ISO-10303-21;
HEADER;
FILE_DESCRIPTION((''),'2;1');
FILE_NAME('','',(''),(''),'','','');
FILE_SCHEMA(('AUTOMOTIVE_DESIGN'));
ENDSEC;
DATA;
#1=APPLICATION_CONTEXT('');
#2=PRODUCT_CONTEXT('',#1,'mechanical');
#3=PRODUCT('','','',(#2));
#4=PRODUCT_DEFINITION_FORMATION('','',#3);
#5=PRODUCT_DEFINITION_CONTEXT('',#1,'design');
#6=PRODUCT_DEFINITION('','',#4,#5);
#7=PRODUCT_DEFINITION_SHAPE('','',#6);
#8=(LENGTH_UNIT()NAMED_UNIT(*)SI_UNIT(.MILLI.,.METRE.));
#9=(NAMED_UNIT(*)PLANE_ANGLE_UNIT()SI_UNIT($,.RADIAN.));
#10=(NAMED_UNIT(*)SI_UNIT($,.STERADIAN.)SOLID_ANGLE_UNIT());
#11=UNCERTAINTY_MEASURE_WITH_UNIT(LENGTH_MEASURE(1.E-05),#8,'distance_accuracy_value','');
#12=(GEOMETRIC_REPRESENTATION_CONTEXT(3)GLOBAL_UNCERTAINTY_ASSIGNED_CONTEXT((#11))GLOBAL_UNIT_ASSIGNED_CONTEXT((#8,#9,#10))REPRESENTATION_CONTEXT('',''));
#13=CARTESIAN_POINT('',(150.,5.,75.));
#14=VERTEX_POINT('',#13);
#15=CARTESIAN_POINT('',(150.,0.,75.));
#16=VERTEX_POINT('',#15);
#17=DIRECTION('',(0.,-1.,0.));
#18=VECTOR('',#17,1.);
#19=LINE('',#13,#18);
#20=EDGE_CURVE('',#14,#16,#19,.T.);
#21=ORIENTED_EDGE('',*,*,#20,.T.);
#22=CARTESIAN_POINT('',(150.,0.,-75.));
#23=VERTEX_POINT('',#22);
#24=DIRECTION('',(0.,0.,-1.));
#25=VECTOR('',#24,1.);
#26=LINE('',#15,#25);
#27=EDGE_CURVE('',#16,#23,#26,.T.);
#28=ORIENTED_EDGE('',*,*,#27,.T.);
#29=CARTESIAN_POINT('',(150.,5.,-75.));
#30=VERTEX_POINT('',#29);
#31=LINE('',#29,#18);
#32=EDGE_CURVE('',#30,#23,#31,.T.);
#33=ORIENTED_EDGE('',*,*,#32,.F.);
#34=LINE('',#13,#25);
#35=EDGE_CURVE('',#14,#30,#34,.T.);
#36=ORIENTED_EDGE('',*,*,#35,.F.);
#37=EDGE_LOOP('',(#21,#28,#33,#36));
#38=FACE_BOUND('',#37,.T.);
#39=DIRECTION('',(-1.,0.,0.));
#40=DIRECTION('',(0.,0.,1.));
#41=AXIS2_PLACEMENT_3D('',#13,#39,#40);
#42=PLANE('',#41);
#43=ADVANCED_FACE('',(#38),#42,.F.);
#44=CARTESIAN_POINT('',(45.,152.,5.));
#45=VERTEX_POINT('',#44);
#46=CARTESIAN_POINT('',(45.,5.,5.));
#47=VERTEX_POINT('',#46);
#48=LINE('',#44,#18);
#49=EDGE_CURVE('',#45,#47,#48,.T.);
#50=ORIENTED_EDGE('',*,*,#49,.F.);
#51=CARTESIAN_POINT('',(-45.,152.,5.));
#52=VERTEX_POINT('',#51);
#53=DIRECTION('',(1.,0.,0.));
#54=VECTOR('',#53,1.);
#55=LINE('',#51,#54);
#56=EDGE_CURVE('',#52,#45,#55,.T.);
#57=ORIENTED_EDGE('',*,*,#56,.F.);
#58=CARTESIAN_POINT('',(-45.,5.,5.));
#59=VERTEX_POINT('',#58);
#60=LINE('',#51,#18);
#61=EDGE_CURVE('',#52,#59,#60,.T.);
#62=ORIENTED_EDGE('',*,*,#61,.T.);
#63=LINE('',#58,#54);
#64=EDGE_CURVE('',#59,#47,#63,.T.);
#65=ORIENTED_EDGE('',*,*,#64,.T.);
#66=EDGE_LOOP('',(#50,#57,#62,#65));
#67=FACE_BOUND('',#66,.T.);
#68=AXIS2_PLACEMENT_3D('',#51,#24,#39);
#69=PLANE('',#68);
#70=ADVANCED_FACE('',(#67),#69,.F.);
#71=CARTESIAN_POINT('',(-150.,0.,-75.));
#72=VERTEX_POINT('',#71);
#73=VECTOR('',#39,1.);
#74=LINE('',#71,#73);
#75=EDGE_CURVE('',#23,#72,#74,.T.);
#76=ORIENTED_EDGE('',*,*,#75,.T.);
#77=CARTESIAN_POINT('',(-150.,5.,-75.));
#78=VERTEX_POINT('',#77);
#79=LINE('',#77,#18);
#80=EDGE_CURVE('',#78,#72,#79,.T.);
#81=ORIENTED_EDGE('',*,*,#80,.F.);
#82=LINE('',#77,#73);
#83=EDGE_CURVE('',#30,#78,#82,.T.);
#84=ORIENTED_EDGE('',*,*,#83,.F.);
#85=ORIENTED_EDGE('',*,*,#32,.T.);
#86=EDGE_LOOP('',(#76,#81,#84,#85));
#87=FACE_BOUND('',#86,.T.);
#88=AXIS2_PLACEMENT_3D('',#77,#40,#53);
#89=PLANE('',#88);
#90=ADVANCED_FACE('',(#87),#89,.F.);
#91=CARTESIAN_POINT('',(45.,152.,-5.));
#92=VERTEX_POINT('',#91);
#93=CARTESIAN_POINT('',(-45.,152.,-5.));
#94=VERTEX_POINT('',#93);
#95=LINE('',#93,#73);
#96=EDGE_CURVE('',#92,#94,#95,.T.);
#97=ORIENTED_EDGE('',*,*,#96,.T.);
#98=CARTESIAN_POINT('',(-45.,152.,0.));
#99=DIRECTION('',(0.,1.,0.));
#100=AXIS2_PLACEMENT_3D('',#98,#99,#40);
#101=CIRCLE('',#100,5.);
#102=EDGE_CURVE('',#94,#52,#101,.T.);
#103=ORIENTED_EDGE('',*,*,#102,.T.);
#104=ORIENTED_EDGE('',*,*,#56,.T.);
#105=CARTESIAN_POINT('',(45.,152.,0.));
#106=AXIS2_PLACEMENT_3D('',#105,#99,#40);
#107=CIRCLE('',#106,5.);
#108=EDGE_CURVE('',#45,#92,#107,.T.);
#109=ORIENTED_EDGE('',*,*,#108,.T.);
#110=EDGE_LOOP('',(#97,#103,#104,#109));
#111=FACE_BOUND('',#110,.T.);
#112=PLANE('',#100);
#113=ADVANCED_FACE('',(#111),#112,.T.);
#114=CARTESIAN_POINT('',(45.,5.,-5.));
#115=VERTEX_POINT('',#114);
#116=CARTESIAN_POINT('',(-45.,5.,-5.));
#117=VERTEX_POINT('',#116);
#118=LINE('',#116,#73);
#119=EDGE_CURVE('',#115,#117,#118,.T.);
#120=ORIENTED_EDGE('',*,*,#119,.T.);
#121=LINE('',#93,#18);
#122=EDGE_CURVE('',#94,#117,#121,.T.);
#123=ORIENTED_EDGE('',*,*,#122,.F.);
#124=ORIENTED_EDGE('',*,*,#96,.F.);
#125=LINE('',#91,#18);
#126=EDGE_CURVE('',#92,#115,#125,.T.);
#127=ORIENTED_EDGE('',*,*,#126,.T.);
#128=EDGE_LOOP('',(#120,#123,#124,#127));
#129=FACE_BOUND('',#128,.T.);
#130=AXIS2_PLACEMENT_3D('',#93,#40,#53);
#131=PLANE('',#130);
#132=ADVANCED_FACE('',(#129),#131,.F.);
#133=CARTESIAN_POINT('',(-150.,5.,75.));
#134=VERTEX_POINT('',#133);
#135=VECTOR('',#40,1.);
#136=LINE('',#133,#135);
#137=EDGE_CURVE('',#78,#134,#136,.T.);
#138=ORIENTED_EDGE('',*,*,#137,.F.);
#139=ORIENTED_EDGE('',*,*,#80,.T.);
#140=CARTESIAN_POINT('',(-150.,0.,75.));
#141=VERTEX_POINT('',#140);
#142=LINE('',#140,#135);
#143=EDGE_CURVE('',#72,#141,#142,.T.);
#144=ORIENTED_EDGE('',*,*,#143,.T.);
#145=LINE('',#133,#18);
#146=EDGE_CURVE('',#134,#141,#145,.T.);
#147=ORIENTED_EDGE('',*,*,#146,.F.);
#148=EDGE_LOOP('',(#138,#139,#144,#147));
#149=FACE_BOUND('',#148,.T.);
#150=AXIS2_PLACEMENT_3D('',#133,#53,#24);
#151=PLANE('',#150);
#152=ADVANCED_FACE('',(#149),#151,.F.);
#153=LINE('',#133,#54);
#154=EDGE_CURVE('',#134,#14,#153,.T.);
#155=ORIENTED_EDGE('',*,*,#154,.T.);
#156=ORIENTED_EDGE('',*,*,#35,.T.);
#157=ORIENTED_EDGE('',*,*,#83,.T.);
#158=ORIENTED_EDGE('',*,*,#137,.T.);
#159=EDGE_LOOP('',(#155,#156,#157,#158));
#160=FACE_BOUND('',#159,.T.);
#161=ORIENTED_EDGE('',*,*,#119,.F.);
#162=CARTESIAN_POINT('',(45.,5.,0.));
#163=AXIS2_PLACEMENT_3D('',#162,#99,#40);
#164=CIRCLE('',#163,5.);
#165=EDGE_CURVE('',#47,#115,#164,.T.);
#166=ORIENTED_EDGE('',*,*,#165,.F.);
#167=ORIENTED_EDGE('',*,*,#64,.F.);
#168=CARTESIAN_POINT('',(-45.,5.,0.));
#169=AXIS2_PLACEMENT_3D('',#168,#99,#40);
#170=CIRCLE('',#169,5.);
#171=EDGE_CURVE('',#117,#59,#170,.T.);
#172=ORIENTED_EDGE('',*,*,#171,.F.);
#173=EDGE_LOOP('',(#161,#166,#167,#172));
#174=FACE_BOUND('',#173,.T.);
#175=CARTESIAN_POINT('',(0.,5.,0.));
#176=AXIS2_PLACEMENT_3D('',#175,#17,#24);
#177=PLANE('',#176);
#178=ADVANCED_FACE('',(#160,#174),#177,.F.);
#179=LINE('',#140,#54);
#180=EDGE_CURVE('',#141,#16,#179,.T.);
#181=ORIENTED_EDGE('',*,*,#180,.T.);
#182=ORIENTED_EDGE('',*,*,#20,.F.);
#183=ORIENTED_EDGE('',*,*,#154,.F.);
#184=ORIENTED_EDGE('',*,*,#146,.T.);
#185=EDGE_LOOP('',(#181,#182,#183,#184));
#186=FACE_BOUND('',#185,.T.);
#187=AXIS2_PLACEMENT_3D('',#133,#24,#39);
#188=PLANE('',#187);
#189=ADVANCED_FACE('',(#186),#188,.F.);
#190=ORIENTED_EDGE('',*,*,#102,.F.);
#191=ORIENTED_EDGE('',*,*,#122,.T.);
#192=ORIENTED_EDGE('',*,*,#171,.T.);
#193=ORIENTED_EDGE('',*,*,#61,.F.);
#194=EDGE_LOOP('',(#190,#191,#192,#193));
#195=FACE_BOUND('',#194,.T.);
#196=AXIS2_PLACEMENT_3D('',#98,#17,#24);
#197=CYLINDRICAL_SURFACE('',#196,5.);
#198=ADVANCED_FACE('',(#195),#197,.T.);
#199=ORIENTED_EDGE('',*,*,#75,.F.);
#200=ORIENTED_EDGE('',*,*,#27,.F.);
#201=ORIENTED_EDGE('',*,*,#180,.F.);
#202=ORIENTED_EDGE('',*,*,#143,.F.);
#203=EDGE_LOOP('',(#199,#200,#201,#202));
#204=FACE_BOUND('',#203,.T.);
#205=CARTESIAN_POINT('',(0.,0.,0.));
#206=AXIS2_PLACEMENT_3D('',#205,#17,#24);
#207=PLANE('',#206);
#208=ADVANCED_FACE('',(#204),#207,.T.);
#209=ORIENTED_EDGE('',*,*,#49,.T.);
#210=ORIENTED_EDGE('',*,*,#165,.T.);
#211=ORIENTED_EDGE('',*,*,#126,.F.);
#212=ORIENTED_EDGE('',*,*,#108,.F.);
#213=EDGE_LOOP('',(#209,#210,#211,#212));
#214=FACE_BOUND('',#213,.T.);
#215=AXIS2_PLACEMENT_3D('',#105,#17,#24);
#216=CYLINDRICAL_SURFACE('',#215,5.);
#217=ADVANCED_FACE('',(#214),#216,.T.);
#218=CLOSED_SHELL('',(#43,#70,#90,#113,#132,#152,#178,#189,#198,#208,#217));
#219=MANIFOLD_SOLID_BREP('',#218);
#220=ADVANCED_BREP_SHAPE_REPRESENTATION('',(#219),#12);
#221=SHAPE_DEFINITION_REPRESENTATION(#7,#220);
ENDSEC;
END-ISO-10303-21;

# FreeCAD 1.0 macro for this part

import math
import FreeCAD as App
import Part
import Sketcher

doc = App.newDocument("Part")
body = doc.addObject("PartDesign::Body", "Body")

# Sketch on XZ plane
sketch1 = body.newObject("Sketcher::SketchObject", "Sketch")
sketch1.AttachmentSupport = (doc.getObject("XZ_Plane"), [""])
sketch1.MapMode = "FlatFace"
sketch1.addGeometry(Part.LineSegment(App.Vector(-150, -75, 0), App.Vector(-150, 75, 0)), False)
sketch1.addGeometry(Part.LineSegment(App.Vector(-150, 75, 0), App.Vector(150, 75, 0)), False)
sketch1.addGeometry(Part.LineSegment(App.Vector(150, 75, 0), App.Vector(150, -75, 0)), False)
sketch1.addGeometry(Part.LineSegment(App.Vector(150, -75, 0), App.Vector(-150, -75, 0)), False)
sketch1.addConstraint(Sketcher.Constraint("Coincident", 0, 2, 1, 1))
sketch1.addConstraint(Sketcher.Constraint("Coincident", 1, 2, 2, 1))
sketch1.addConstraint(Sketcher.Constraint("Coincident", 2, 2, 3, 1))
sketch1.addConstraint(Sketcher.Constraint("Coincident", 3, 2, 0, 1))
sketch1.addConstraint(Sketcher.Constraint("Vertical", 0))
sketch1.addConstraint(Sketcher.Constraint("Horizontal", 1))
sketch1.addConstraint(Sketcher.Constraint("Vertical", 2))
sketch1.addConstraint(Sketcher.Constraint("Horizontal", 3))
sketch1.addConstraint(Sketcher.Constraint("Symmetric", 0, 2, 2, 2, -1, 1))
sketch1.addConstraint(Sketcher.Constraint("DistanceX", 1, 1, 1, 2, 300.0))
sketch1.addConstraint(Sketcher.Constraint("DistanceY", 0, 1, 0, 2, 150.0))
pad1 = body.newObject("PartDesign::Pad", "Pad")
pad1.Profile = sketch1
pad1.Length = 5
pad1.Reversed = True

# Sketch on XZ plane
sketch2 = body.newObject("Sketcher::SketchObject", "Sketch001")
sketch2.AttachmentSupport = (doc.getObject("XZ_Plane"), [""])
sketch2.MapMode = "FlatFace"
sketch2.AttachmentOffset = App.Placement(App.Vector(0, 0, -5), App.Rotation())
sketch2.addGeometry(Part.LineSegment(App.Vector(45, -5, 0), App.Vector(-45, -5, 0)), False)
sketch2.addGeometry(Part.ArcOfCircle(Part.Circle(App.Vector(-45, 0, 0), App.Vector(0, 0, 1), 5), math.radians(90), math.radians(270)), False)
sketch2.addGeometry(Part.LineSegment(App.Vector(-45, 5, 0), App.Vector(45, 5, 0)), False)
sketch2.addGeometry(Part.ArcOfCircle(Part.Circle(App.Vector(45, 0, 0), App.Vector(0, 0, 1), 5), math.radians(-90), math.radians(90)), False)
sketch2.addConstraint(Sketcher.Constraint("Tangent", 0, 2, 1, 2))
sketch2.addConstraint(Sketcher.Constraint("Tangent", 1, 1, 2, 1))
sketch2.addConstraint(Sketcher.Constraint("Tangent", 2, 2, 3, 2))
sketch2.addConstraint(Sketcher.Constraint("Tangent", 3, 1, 0, 1))
sketch2.addConstraint(Sketcher.Constraint("Horizontal", 0))
sketch2.addConstraint(Sketcher.Constraint("Horizontal", 2))
sketch2.addConstraint(Sketcher.Constraint("Symmetric", 1, 3, 3, 3, -1, 1))
sketch2.addConstraint(Sketcher.Constraint("Radius", 1, 5.0))
sketch2.addConstraint(Sketcher.Constraint("DistanceX", 0, 2, 0, 1, 90.0))
pad2 = body.newObject("PartDesign::Pad", "Pad001")
pad2.Profile = sketch2
pad2.Length = 147
pad2.Reversed = True

doc.recompute()
